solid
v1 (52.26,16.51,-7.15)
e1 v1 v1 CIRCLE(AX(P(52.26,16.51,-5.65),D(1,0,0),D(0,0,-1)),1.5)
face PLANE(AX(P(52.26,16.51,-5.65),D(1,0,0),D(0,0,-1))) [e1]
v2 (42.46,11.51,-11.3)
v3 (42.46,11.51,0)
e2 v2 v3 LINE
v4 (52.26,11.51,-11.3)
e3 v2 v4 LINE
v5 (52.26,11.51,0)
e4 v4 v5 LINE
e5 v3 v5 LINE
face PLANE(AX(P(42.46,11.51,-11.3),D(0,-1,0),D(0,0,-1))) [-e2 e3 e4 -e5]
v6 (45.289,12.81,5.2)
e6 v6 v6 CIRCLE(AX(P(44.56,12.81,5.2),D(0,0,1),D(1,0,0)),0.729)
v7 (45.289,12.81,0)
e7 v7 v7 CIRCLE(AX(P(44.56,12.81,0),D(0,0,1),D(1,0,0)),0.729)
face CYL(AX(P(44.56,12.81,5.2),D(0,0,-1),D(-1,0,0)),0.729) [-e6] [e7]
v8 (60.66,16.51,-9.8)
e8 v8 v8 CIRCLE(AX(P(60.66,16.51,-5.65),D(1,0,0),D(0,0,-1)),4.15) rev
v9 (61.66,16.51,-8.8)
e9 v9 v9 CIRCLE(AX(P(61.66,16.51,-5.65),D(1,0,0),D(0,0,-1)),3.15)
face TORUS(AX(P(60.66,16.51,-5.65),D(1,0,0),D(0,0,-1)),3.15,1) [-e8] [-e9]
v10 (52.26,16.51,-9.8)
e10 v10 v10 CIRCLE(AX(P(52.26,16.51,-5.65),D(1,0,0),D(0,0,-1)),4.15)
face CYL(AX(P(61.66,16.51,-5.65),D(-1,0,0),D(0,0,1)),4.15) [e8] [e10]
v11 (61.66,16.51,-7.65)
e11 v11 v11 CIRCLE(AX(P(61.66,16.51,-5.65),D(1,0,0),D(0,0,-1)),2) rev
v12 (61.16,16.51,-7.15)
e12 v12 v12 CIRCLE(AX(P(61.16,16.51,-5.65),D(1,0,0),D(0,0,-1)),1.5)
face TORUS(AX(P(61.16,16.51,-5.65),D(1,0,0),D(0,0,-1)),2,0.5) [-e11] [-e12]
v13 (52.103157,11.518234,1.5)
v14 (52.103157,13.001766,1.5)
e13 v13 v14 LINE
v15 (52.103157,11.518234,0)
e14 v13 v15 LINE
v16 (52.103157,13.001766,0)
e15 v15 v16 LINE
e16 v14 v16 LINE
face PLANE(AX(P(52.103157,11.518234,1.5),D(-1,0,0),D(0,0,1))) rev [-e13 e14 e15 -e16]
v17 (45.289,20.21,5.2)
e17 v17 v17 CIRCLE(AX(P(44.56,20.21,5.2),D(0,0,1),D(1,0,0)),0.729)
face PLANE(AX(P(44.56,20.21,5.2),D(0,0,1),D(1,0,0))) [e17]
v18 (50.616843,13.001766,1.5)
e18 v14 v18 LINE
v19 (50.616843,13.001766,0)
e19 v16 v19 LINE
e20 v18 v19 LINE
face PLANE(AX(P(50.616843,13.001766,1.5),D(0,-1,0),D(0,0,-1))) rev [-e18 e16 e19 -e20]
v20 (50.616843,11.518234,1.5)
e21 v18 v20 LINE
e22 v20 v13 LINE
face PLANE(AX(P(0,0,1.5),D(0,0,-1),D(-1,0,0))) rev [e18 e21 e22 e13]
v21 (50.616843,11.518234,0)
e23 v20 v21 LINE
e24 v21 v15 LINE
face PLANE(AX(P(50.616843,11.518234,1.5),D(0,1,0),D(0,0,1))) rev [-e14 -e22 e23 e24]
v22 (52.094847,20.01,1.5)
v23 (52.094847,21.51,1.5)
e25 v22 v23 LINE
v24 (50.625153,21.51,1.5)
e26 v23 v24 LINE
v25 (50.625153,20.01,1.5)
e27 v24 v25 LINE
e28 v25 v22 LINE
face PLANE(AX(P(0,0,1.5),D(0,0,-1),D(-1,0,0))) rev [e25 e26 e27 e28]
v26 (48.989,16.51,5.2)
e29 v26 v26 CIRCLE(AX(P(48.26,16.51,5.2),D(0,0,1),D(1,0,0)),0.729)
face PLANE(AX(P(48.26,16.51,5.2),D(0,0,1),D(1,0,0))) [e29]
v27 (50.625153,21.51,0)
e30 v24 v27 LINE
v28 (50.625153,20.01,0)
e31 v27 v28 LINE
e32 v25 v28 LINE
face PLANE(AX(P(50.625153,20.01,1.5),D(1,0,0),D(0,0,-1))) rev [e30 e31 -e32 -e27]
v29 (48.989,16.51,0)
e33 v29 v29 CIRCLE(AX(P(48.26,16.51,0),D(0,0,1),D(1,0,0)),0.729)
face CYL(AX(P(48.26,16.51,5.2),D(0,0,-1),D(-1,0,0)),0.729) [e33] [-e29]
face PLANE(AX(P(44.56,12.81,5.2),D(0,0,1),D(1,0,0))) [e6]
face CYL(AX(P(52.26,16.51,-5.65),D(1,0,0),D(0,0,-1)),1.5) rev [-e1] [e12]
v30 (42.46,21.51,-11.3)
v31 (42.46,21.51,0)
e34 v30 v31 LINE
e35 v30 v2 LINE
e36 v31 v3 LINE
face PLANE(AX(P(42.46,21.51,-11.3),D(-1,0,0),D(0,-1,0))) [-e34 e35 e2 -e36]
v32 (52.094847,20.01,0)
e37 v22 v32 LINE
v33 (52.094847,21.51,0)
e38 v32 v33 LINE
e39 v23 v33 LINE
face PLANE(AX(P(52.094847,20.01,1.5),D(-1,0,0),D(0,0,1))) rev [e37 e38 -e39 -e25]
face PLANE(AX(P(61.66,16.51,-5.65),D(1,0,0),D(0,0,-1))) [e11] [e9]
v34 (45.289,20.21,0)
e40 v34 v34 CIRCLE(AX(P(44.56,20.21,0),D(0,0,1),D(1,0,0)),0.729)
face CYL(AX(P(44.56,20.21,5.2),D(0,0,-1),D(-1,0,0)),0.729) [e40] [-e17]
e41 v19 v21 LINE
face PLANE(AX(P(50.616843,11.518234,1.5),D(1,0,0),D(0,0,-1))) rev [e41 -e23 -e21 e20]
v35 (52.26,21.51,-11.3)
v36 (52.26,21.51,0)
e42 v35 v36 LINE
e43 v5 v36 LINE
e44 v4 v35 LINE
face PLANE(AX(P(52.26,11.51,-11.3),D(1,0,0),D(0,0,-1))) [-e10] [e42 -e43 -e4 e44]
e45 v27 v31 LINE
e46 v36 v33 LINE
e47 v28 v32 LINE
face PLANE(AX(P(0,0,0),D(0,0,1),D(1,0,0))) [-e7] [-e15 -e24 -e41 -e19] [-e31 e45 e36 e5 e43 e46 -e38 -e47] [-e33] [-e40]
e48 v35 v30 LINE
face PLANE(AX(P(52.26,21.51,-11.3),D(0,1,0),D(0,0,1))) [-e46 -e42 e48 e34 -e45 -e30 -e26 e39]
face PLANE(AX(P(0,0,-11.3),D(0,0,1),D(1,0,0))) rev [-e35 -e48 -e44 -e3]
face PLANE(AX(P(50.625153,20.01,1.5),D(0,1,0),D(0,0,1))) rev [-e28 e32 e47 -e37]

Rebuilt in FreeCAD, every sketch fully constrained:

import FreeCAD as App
import Part
import Sketcher
from FreeCAD import Vector


def edges_at(feature, points):
    """Names of the edges that pass closest to the given points."""
    edges = feature.Shape.Edges
    near = lambda p: min(range(len(edges)), key=lambda i: edges[i].distToShape(Part.Vertex(*p))[0])
    return sorted({f"Edge{near(p) + 1}" for p in points})


def add_polygon(sketch, points):
    """Adds a closed chain of lines whose ends are joined by coincident constraints."""
    first, n = sketch.GeometryCount, len(points)
    for a, b in zip(points, points[1:] + points[:1]):
        sketch.addGeometry(Part.LineSegment(App.Vector(*a, 0), App.Vector(*b, 0)), False)
    for i in range(n):
        sketch.addConstraint(Sketcher.Constraint("Coincident", first + i, 2, first + (i + 1) % n, 1))

doc = App.newDocument("Part")
body = doc.addObject("PartDesign::Body", "Body")

sketch1 = body.newObject("Sketcher::SketchObject", "Sketch")
sketch1.AttachmentSupport = (doc.getObject("XY_Plane"), [""])
sketch1.MapMode = "FlatFace"
sketch1.addGeometry(Part.Circle(Vector(44.6, 20.2, 0), Vector(0, 0, 1), 0.7), False)
sketch1.addConstraint([
    Sketcher.Constraint("Diameter", 0, 1.458),
    Sketcher.Constraint("DistanceX", -1, 1, 0, 3, 44.56),
    Sketcher.Constraint("DistanceY", -1, 1, 0, 3, 20.21),
])
pad1 = body.newObject("PartDesign::Pad", "Pad")
pad1.Profile = sketch1
pad1.Length = 5.2
body2 = doc.addObject("PartDesign::Body", "Body001")

sketch2 = body2.newObject("Sketcher::SketchObject", "Sketch001")
sketch2.AttachmentSupport = (doc.getObject("XY_Plane001"), [""])
sketch2.MapMode = "FlatFace"
sketch2.addGeometry(Part.Circle(Vector(44.6, 12.8, 0), Vector(0, 0, 1), 0.7), False)
sketch2.addConstraint([
    Sketcher.Constraint("Diameter", 0, 1.458),
    Sketcher.Constraint("DistanceX", -1, 1, 0, 3, 44.56),
    Sketcher.Constraint("DistanceY", -1, 1, 0, 3, 12.81),
])
pad2 = body2.newObject("PartDesign::Pad", "Pad001")
pad2.Profile = sketch2
pad2.Length = 5.2
body3 = doc.addObject("PartDesign::Body", "Body002")

sketch3 = body3.newObject("Sketcher::SketchObject", "Sketch002")
sketch3.AttachmentSupport = (doc.getObject("XY_Plane002"), [""])
sketch3.MapMode = "FlatFace"
sketch3.addGeometry(Part.Circle(Vector(48.3, 16.5, 0), Vector(0, 0, 1), 0.7), False)
sketch3.addConstraint([
    Sketcher.Constraint("Diameter", 0, 1.458),
    Sketcher.Constraint("DistanceX", -1, 1, 0, 3, 48.26),
    Sketcher.Constraint("DistanceY", -1, 1, 0, 3, 16.51),
])
pad3 = body3.newObject("PartDesign::Pad", "Pad002")
pad3.Profile = sketch3
pad3.Length = 5.2
body.AllowCompound = True
doc.recompute()

boolean = body.newObject("PartDesign::Boolean", "Boolean")
boolean.Type = "Fuse"
boolean.addObjects([body2])
doc.recompute()

boolean2 = body.newObject("PartDesign::Boolean", "Boolean001")
boolean2.Type = "Fuse"
boolean2.addObjects([body3])

sketch4 = body.newObject("Sketcher::SketchObject", "Sketch003")
sketch4.AttachmentSupport = (doc.getObject("XY_Plane"), [""])
sketch4.MapMode = "FlatFace"
add_polygon(sketch4, [(42, 22), (42, 12), (52, 12), (52, 22)])
sketch4.addConstraint([
    Sketcher.Constraint("Vertical", 0),
    Sketcher.Constraint("Horizontal", 1),
    Sketcher.Constraint("Vertical", 2),
    Sketcher.Constraint("Horizontal", 3),
    Sketcher.Constraint("DistanceY", 0, 2, 0, 1, 10.0),
    Sketcher.Constraint("DistanceX", 1, 1, 1, 2, 9.8),
    Sketcher.Constraint("DistanceX", -1, 1, 0, 2, 42.46),
    Sketcher.Constraint("DistanceY", -1, 1, 0, 2, 11.51),
])
pad4 = body.newObject("PartDesign::Pad", "Pad003")
pad4.Profile = sketch4
pad4.Length = 11.3
pad4.Reversed = True

sketch5 = body.newObject("Sketcher::SketchObject", "Sketch004")
sketch5.AttachmentSupport = (doc.getObject("YZ_Plane"), [""])
sketch5.MapMode = "FlatFace"
sketch5.AttachmentOffset = App.Placement(Vector(0, 0, 52.26), App.Rotation())
sketch5.addGeometry(Part.Circle(Vector(16.5, -5.7, 0), Vector(0, 0, 1), 4.2), False)
sketch5.addConstraint([
    Sketcher.Constraint("Diameter", 0, 8.3),
    Sketcher.Constraint("DistanceX", -1, 1, 0, 3, 16.51),
    Sketcher.Constraint("DistanceY", 0, 3, -1, 1, 5.65),
])
pad5 = body.newObject("PartDesign::Pad", "Pad004")
pad5.Profile = sketch5
pad5.Length = 9.4

sketch6 = body.newObject("Sketcher::SketchObject", "Sketch005")
sketch6.AttachmentSupport = (doc.getObject("YZ_Plane"), [""])
sketch6.MapMode = "FlatFace"
sketch6.AttachmentOffset = App.Placement(Vector(0, 0, 61.66), App.Rotation())
sketch6.addGeometry(Part.Circle(Vector(16.5, -5.7, 0), Vector(0, 0, 1), 1.5), False)
sketch6.addConstraint([
    Sketcher.Constraint("Diameter", 0, 3.0),
    Sketcher.Constraint("DistanceX", -1, 1, 0, 3, 16.51),
    Sketcher.Constraint("DistanceY", 0, 3, -1, 1, 5.65),
])
pocket1 = body.newObject("PartDesign::Pocket", "Pocket")
pocket1.Profile = sketch6
pocket1.Length = 9.4
doc.recompute()

fillet = body.newObject("PartDesign::Fillet", "Fillet")
fillet.Base = (pocket1, edges_at(pocket1, [(61.66, 16.51, -1.5)]))
fillet.Radius = 1
doc.recompute()

fillet2 = body.newObject("PartDesign::Fillet", "Fillet001")
fillet2.Base = (fillet, edges_at(fillet, [(61.66, 16.51, -4.15)]))
fillet2.Radius = 0.5

sketch7 = body.newObject("Sketcher::SketchObject", "Sketch006")
sketch7.AttachmentSupport = (doc.getObject("XY_Plane"), [""])
sketch7.MapMode = "FlatFace"
add_polygon(sketch7, [(50.6, 21.5), (50.6, 20), (52.1, 20), (52.1, 21.5)])
add_polygon(sketch7, [(50.6, 13), (50.6, 11.5), (52.1, 11.5), (52.1, 13)])
sketch7.addConstraint([
    Sketcher.Constraint("Vertical", 0),
    Sketcher.Constraint("Horizontal", 1),
    Sketcher.Constraint("Vertical", 2),
    Sketcher.Constraint("Horizontal", 3),
    Sketcher.Constraint("Vertical", 4),
    Sketcher.Constraint("Horizontal", 5),
    Sketcher.Constraint("Vertical", 6),
    Sketcher.Constraint("Horizontal", 7),
    Sketcher.Constraint("DistanceY", 0, 2, 0, 1, 1.5),
    Sketcher.Constraint("DistanceY", -1, 1, 0, 2, 20.01),
    Sketcher.Constraint("DistanceX", 1, 1, 1, 2, 1.469694),
    Sketcher.Constraint("DistanceX", 5, 1, 5, 2, 1.486314),
    Sketcher.Constraint("DistanceY", 4, 2, 4, 1, 1.483533),
    Sketcher.Constraint("DistanceX", 4, 2, 0, 2, 0.00831),
    Sketcher.Constraint("DistanceX", -1, 1, 0, 2, 50.625153),
    Sketcher.Constraint("DistanceY", -1, 1, 4, 2, 11.518234),
])
pad6 = body.newObject("PartDesign::Pad", "Pad005")
pad6.Profile = sketch7
pad6.Length = 1.5

doc.recompute()
